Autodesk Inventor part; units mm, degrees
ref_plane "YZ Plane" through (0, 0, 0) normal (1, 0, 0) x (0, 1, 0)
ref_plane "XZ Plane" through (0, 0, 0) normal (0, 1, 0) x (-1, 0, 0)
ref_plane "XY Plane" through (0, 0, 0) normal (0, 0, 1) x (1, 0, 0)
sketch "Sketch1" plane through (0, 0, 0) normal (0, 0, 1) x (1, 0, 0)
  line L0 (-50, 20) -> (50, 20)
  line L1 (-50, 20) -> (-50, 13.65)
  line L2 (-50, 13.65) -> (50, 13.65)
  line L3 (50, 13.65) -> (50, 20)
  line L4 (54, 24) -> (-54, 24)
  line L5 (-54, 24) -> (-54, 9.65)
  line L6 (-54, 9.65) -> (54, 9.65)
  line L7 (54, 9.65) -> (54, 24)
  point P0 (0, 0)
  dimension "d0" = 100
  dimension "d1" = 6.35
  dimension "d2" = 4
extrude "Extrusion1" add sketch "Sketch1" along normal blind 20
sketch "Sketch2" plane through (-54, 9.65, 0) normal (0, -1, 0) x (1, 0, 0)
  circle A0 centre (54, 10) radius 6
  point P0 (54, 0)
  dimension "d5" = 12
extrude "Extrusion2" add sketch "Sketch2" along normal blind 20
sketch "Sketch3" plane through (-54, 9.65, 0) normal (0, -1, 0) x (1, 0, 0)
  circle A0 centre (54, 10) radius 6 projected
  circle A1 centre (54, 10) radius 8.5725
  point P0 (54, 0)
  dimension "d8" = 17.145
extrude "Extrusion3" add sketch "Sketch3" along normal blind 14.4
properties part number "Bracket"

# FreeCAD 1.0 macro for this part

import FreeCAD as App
import Part
import Sketcher

V = App.Vector


def add_polygon(sketch, points):
    """Adds a closed chain of lines whose ends are joined by coincident constraints."""
    first, n = sketch.GeometryCount, len(points)
    for a, b in zip(points, points[1:] + points[:1]):
        sketch.addGeometry(Part.LineSegment(App.Vector(*a, 0), App.Vector(*b, 0)), False)
    for i in range(n):
        sketch.addConstraint(Sketcher.Constraint("Coincident", first + i, 2, first + (i + 1) % n, 1))

doc = App.newDocument("Part")
params = doc.addObject("Spreadsheet::Sheet", "Params")
for row, (alias, value) in enumerate([
    ("sketch1_width", "100 mm"),
    ("sketch1_height", "6.35 mm"),
    ("pad1_length", "20 mm"),
    ("sketch2_diameter", "12 mm"),
    ("pad2_length", "20 mm"),
    ("sketch3_diameter", "12 mm"),
    ("pad3_length", "14.4 mm"),
], start=1):
    params.set(f"A{row}", alias)
    params.set(f"B{row}", "=" + value)
    params.setAlias(f"B{row}", alias)

body = doc.addObject("PartDesign::Body", "Body")

# Sketch on XY plane
sketch1 = body.newObject("Sketcher::SketchObject", "Sketch")
sketch1.AttachmentSupport = (doc.getObject("XY_Plane"), [""])
sketch1.MapMode = "FlatFace"
add_polygon(sketch1, [(54, 10), (54, 24), (-54, 24), (-54, 10)])  # lines 0-3
add_polygon(sketch1, [(-50, 14), (-50, 20), (50, 20), (50, 14)])  # lines 4-7
sketch1.addConstraint(Sketcher.Constraint("Vertical", 0))
sketch1.addConstraint(Sketcher.Constraint("Horizontal", 1))
sketch1.addConstraint(Sketcher.Constraint("Vertical", 2))
sketch1.addConstraint(Sketcher.Constraint("Horizontal", 3))
sketch1.addConstraint(Sketcher.Constraint("Vertical", 4))
sketch1.addConstraint(Sketcher.Constraint("Horizontal", 5))
sketch1.addConstraint(Sketcher.Constraint("Vertical", 6))
sketch1.addConstraint(Sketcher.Constraint("Horizontal", 7))
sketch1.addConstraint(Sketcher.Constraint("DistanceX", 5, 1, 5, 2, 100.0))
sketch1.addConstraint(Sketcher.Constraint("DistanceX", 1, 2, 4, 2, 4.0))
sketch1.addConstraint(Sketcher.Constraint("DistanceY", 4, 2, 1, 2, 4.0))
sketch1.addConstraint(Sketcher.Constraint("DistanceX", 5, 2, 0, 2, 4.0))
sketch1.addConstraint(Sketcher.Constraint("DistanceY", 3, 2, 6, 2, 4.0))
sketch1.addConstraint(Sketcher.Constraint("DistanceY", 4, 1, 4, 2, 6.35))
sketch1.addConstraint(Sketcher.Constraint("DistanceX", -1, 1, 0, 2, 54.0))
sketch1.addConstraint(Sketcher.Constraint("DistanceY", -1, 1, 0, 2, 24.0))
sketch1.setExpression("Constraints[16]", "Params.sketch1_width")
sketch1.setExpression("Constraints[21]", "Params.sketch1_height")
pad1 = body.newObject("PartDesign::Pad", "Pad")
pad1.Profile = sketch1
pad1.setExpression("Length", "Params.pad1_length")

# Sketch on XZ plane
sketch2 = body.newObject("Sketcher::SketchObject", "Sketch001")
sketch2.AttachmentSupport = (doc.getObject("XZ_Plane"), [""])
sketch2.MapMode = "FlatFace"
sketch2.AttachmentOffset = App.Placement(V(0, 0, -9.65), App.Rotation())
sketch2.addGeometry(Part.Circle(V(0, 10, 0), V(0, 0, 1), 6), False)
sketch2.addConstraint(Sketcher.Constraint("PointOnObject", 0, 3, -2))
sketch2.addConstraint(Sketcher.Constraint("Diameter", 0, 12.0))
sketch2.addConstraint(Sketcher.Constraint("DistanceY", -1, 1, 0, 3, 10.0))
sketch2.setExpression("Constraints[1]", "Params.sketch2_diameter")
pad2 = body.newObject("PartDesign::Pad", "Pad001")
pad2.Profile = sketch2
pad2.setExpression("Length", "Params.pad2_length")

# Sketch on XZ plane
sketch3 = body.newObject("Sketcher::SketchObject", "Sketch002")
sketch3.AttachmentSupport = (doc.getObject("XZ_Plane"), [""])
sketch3.MapMode = "FlatFace"
sketch3.AttachmentOffset = App.Placement(V(0, 0, -9.65), App.Rotation())
sketch3.addGeometry(Part.Circle(V(0, 10, 0), V(0, 0, 1), 9), False)
sketch3.addGeometry(Part.Circle(V(0, 10, 0), V(0, 0, 1), 6), False)
sketch3.addConstraint(Sketcher.Constraint("Coincident", 1, 3, 0, 3))
sketch3.addConstraint(Sketcher.Constraint("PointOnObject", 0, 3, -2))
sketch3.addConstraint(Sketcher.Constraint("Diameter", 0, 17.145))
sketch3.addConstraint(Sketcher.Constraint("Diameter", 1, 12.0))
sketch3.addConstraint(Sketcher.Constraint("DistanceY", -1, 1, 0, 3, 10.0))
sketch3.setExpression("Constraints[3]", "Params.sketch3_diameter")
pad3 = body.newObject("PartDesign::Pad", "Pad002")
pad3.Profile = sketch3
pad3.setExpression("Length", "Params.pad3_length")

doc.recompute()
